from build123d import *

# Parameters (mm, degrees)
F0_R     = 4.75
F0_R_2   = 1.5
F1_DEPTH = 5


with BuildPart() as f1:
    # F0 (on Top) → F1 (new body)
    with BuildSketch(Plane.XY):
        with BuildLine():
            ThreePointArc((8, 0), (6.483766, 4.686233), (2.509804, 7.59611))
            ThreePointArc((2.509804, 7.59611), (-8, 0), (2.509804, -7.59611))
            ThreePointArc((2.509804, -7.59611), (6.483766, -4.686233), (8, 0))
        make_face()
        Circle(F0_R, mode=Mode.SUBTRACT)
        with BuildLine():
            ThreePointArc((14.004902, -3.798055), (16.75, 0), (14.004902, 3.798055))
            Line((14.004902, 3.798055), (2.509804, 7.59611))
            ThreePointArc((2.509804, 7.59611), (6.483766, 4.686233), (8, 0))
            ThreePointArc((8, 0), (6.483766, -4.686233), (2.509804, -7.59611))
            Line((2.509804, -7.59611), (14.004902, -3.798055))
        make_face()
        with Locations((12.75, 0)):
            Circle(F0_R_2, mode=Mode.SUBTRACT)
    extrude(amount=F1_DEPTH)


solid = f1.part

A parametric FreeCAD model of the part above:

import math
import FreeCAD as App
import Part
import Sketcher

V = App.Vector

doc = App.newDocument("Part")
body = doc.addObject("PartDesign::Body", "Body")

sketch1 = body.newObject("Sketcher::SketchObject", "Sketch")
sketch1.AttachmentSupport = (doc.getObject("XY_Plane"), [""])
sketch1.MapMode = "FlatFace"
sketch1.addGeometry([
    Part.ArcOfCircle(Part.Circle(V(0, 0, 0), V(0, 0, 1), 8), math.radians(72), math.radians(288)),
    Part.LineSegment(V(2.5, -7.6, 0), V(14, -3.8, 0)),
    Part.ArcOfCircle(Part.Circle(V(12.7, 0, 0), V(0, 0, 1), 4), math.radians(-72), math.radians(72)),
    Part.LineSegment(V(14, 3.8, 0), V(2.5, 7.6, 0)),
    Part.Circle(V(0, 0, 0), V(0, 0, 1), 4.8),
    Part.Circle(V(12.8, 0, 0), V(0, 0, 1), 1.5),
], False)
sketch1.addConstraint([
    Sketcher.Constraint("Tangent", 0, 2, 1, 1),
    Sketcher.Constraint("Tangent", 1, 2, 2, 1),
    Sketcher.Constraint("Tangent", 2, 2, 3, 1),
    Sketcher.Constraint("Tangent", 3, 2, 0, 1),
    Sketcher.Constraint("Coincident", 0, 3, -1, 1),
    Sketcher.Constraint("Coincident", 4, 3, -1, 1),
    Sketcher.Constraint("Coincident", 5, 3, 2, 3),
    Sketcher.Constraint("PointOnObject", 2, 3, -1),
    Sketcher.Constraint("Diameter", 5, 3.0),
    Sketcher.Constraint("Radius", 0, 8.0),
    Sketcher.Constraint("Radius", 2, 4.0),
    Sketcher.Constraint("Diameter", 4, 9.5),
    Sketcher.Constraint("DistanceX", -1, 1, 2, 3, 12.75),
])
pad1 = body.newObject("PartDesign::Pad", "Pad")
pad1.Profile = sketch1
pad1.Length = 5

doc.recompute()
